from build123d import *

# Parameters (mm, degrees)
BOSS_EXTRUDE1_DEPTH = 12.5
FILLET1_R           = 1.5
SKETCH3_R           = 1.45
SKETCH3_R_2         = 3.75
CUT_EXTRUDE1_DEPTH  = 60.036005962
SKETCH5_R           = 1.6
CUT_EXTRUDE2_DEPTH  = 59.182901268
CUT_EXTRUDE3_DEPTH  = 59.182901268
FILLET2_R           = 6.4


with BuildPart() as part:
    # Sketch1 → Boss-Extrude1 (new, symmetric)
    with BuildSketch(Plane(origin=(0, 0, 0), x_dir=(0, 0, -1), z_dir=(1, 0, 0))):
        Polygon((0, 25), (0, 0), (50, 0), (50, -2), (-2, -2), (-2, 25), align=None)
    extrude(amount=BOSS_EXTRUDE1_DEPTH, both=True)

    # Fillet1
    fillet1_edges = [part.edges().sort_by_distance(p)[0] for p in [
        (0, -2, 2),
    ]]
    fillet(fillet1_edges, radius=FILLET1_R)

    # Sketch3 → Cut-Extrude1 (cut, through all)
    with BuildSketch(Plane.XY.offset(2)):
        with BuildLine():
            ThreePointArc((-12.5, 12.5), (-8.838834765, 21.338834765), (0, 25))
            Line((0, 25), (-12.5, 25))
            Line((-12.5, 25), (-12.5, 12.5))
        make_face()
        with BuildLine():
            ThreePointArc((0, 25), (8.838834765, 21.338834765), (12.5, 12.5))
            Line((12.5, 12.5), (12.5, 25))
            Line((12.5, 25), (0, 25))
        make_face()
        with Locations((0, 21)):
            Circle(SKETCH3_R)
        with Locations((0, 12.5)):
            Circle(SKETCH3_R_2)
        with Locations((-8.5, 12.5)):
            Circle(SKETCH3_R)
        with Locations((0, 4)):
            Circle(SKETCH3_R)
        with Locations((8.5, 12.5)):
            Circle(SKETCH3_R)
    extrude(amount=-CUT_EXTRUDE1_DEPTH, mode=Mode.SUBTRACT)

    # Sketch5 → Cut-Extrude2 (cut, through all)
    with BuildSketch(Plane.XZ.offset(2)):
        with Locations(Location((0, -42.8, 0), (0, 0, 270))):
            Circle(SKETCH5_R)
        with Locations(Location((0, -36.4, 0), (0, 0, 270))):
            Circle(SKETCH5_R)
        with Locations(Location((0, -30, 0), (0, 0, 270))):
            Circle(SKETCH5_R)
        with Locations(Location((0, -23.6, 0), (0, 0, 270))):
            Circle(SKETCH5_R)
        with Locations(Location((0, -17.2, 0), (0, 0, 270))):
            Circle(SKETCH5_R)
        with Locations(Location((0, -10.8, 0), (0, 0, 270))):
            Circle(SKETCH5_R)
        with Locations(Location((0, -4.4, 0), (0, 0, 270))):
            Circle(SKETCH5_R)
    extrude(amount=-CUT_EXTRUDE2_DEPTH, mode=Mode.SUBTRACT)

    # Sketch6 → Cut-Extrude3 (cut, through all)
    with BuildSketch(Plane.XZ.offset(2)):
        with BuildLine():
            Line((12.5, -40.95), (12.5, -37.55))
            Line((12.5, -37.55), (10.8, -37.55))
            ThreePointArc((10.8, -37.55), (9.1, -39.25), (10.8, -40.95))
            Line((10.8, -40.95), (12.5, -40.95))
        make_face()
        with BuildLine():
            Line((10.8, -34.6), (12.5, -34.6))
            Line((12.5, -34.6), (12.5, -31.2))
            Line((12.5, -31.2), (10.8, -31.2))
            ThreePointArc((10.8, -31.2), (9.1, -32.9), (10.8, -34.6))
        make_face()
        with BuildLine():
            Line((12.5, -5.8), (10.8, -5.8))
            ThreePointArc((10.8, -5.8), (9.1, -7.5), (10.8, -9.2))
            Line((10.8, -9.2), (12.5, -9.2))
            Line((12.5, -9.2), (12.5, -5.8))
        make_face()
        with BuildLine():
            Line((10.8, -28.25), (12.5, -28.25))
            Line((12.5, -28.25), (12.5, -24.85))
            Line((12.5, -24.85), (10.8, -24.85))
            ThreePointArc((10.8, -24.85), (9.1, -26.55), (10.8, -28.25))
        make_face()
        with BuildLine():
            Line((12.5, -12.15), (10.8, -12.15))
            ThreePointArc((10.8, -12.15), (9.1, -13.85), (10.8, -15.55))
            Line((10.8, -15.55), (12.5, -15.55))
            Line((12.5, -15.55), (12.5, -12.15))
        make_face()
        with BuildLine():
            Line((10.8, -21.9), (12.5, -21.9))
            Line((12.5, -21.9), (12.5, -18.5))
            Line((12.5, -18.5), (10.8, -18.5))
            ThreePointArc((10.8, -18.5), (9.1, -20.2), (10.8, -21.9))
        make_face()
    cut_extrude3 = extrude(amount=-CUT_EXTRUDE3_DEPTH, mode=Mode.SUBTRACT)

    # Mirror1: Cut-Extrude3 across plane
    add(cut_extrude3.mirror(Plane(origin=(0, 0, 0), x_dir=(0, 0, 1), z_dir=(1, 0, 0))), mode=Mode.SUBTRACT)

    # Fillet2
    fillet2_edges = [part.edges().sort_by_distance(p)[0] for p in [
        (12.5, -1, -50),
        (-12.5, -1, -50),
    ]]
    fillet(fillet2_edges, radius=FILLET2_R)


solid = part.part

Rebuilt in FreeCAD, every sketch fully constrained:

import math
import FreeCAD as App
import Part
import Sketcher

V = App.Vector
Q = App.Units.Quantity


def edges_at(feature, points):
    """Names of the edges that pass closest to the given points."""
    edges = feature.Shape.Edges
    near = lambda p: min(range(len(edges)), key=lambda i: edges[i].distToShape(Part.Vertex(*p))[0])
    return sorted({f"Edge{near(p) + 1}" for p in points})


def add_polygon(sketch, points):
    """Adds a closed chain of lines whose ends are joined by coincident constraints."""
    first, n = sketch.GeometryCount, len(points)
    for a, b in zip(points, points[1:] + points[:1]):
        sketch.addGeometry(Part.LineSegment(App.Vector(*a, 0), App.Vector(*b, 0)), False)
    for i in range(n):
        sketch.addConstraint(Sketcher.Constraint("Coincident", first + i, 2, first + (i + 1) % n, 1))

doc = App.newDocument("Part")
params = doc.addObject("Spreadsheet::Sheet", "Params")
for row, (alias, value) in enumerate([
    ("sketch1_width", "25 mm"),
    ("sketch1_width2", "27 mm"),
    ("sketch1_height", "52 mm"),
    ("pad1_length", "25 mm"),
    ("fillet_radius", "1.5 mm"),
    ("sketch2_diameter", "2.9 mm"),
    ("sketch2_diameter2", "7.5 mm"),
    ("sketch2_radius", "12.5 mm"),
    ("sketch3_diameter", "3.2 mm"),
    ("sketch4_radius", "1.7 mm"),
    ("sketch4_width", "1.7 mm"),
    ("fillet2_radius", "6.4 mm"),
], start=1):
    params.set(f"A{row}", alias)
    params.set(f"B{row}", "=" + value)
    params.setAlias(f"B{row}", alias)

body = doc.addObject("PartDesign::Body", "Body")

# Sketch on YZ plane
sketch1 = body.newObject("Sketcher::SketchObject", "Sketch")
sketch1.AttachmentSupport = (doc.getObject("YZ_Plane"), [""])
sketch1.MapMode = "FlatFace"
add_polygon(sketch1, [(0, 0), (25, 0), (25, 2), (-2, 2), (-2, -50), (0, -50)])  # lines 0-5
sketch1.addConstraint(Sketcher.Constraint("Horizontal", 0))
sketch1.addConstraint(Sketcher.Constraint("Vertical", 1))
sketch1.addConstraint(Sketcher.Constraint("Horizontal", 2))
sketch1.addConstraint(Sketcher.Constraint("Vertical", 3))
sketch1.addConstraint(Sketcher.Constraint("Horizontal", 4))
sketch1.addConstraint(Sketcher.Constraint("Vertical", 5))
sketch1.addConstraint(Sketcher.Constraint("Coincident", 5, 2, -1, 1))
sketch1.addConstraint(Sketcher.Constraint("Equal", 4, 1))
sketch1.addConstraint(Sketcher.Constraint("DistanceX", 0, 1, 0, 2, Q("25 mm")))
sketch1.addConstraint(Sketcher.Constraint("DistanceX", 2, 2, 2, 1, Q("27 mm")))
sketch1.addConstraint(Sketcher.Constraint("DistanceY", 3, 2, 3, 1, Q("52 mm")))
sketch1.setExpression("Constraints[14]", "Params.sketch1_width")
sketch1.setExpression("Constraints[15]", "Params.sketch1_width2")
sketch1.setExpression("Constraints[16]", "Params.sketch1_height")
pad1 = body.newObject("PartDesign::Pad", "Pad")
pad1.Profile = sketch1
pad1.setExpression("Length", "Params.pad1_length")
pad1.Midplane = True
doc.recompute()

fillet = body.newObject("PartDesign::Fillet", "Fillet")
fillet.Base = (pad1, edges_at(pad1, [(0, -2, 2)]))
fillet.setExpression("Radius", "Params.fillet_radius")

# Sketch on XY plane
sketch2 = body.newObject("Sketcher::SketchObject", "Sketch001")
sketch2.AttachmentSupport = (doc.getObject("XY_Plane"), [""])
sketch2.MapMode = "FlatFace"
sketch2.AttachmentOffset = App.Placement(V(0, 0, 2), App.Rotation())
sketch2.addGeometry(Part.ArcOfCircle(Part.Circle(V(0, 12.5, 0), V(0, 0, 1), 12.5), math.radians(90), math.radians(180)), False)
sketch2.addGeometry(Part.LineSegment(V(0, 25, 0), V(-12.5, 25, 0)), False)
sketch2.addGeometry(Part.LineSegment(V(-12.5, 25, 0), V(-12.5, 12.5, 0)), False)
sketch2.addGeometry(Part.ArcOfCircle(Part.Circle(V(0, 12.5, 0), V(0, 0, 1), 12.5), math.radians(0), math.radians(90)), False)
sketch2.addGeometry(Part.LineSegment(V(12.5, 12.5, 0), V(12.5, 25, 0)), False)
sketch2.addGeometry(Part.LineSegment(V(12.5, 25, 0), V(0, 25, 0)), False)
sketch2.addGeometry(Part.Circle(V(0, 21, 0), V(0, 0, 1), 1.4), False)
sketch2.addGeometry(Part.Circle(V(0, 12.5, 0), V(0, 0, 1), 3.8), False)
sketch2.addGeometry(Part.Circle(V(-8.5, 12.5, 0), V(0, 0, 1), 1.4), False)
sketch2.addGeometry(Part.Circle(V(0, 4, 0), V(0, 0, 1), 1.4), False)
sketch2.addGeometry(Part.Circle(V(8.5, 12.5, 0), V(0, 0, 1), 1.4), False)
sketch2.addConstraint(Sketcher.Constraint("Tangent", 0, 1, 1, 1))
sketch2.addConstraint(Sketcher.Constraint("Coincident", 1, 2, 2, 1))
sketch2.addConstraint(Sketcher.Constraint("Tangent", 2, 2, 0, 2))
sketch2.addConstraint(Sketcher.Constraint("Tangent", 3, 1, 4, 1))
sketch2.addConstraint(Sketcher.Constraint("Coincident", 4, 2, 5, 1))
sketch2.addConstraint(Sketcher.Constraint("Tangent", 5, 2, 3, 2))
sketch2.addConstraint(Sketcher.Constraint("Horizontal", 1))
sketch2.addConstraint(Sketcher.Constraint("Vertical", 2))
sketch2.addConstraint(Sketcher.Constraint("Vertical", 4))
sketch2.addConstraint(Sketcher.Constraint("Horizontal", 5))
sketch2.addConstraint(Sketcher.Constraint("Coincident", 3, 3, 0, 3))
sketch2.addConstraint(Sketcher.Constraint("Coincident", 7, 3, 0, 3))
sketch2.addConstraint(Sketcher.Constraint("Equal", 0, 3))
sketch2.addConstraint(Sketcher.Constraint("Equal", 6, 8))
sketch2.addConstraint(Sketcher.Constraint("Equal", 8, 9))
sketch2.addConstraint(Sketcher.Constraint("Equal", 9, 10))
sketch2.addConstraint(Sketcher.Constraint("Symmetric", 8, 3, 10, 3, -2))
sketch2.addConstraint(Sketcher.Constraint("PointOnObject", 0, 3, -2))
sketch2.addConstraint(Sketcher.Constraint("PointOnObject", 6, 3, -2))
sketch2.addConstraint(Sketcher.Constraint("PointOnObject", 9, 3, -2))
sketch2.addConstraint(Sketcher.Constraint("Horizontal", 7, 3, 8, 3))
sketch2.addConstraint(Sketcher.Constraint("Diameter", 6, Q("2.9 mm")))
sketch2.addConstraint(Sketcher.Constraint("Diameter", 7, Q("7.5 mm")))
sketch2.addConstraint(Sketcher.Constraint("Radius", 0, Q("12.5 mm")))
sketch2.addConstraint(Sketcher.Constraint("DistanceY", -1, 1, 6, 3, Q("21 mm")))
sketch2.addConstraint(Sketcher.Constraint("DistanceY", -1, 1, 9, 3, Q("4 mm")))
sketch2.addConstraint(Sketcher.Constraint("DistanceY", -1, 1, 0, 1, Q("25 mm")))
sketch2.addConstraint(Sketcher.Constraint("DistanceX", 1, 2, 8, 3, Q("4 mm")))
sketch2.setExpression("Constraints[21]", "Params.sketch2_diameter")
sketch2.setExpression("Constraints[22]", "Params.sketch2_diameter2")
sketch2.setExpression("Constraints[23]", "Params.sketch2_radius")
pocket1 = body.newObject("PartDesign::Pocket", "Pocket")
pocket1.Profile = sketch2
pocket1.Type = "ThroughAll"

# Sketch on XZ plane
sketch3 = body.newObject("Sketcher::SketchObject", "Sketch002")
sketch3.AttachmentSupport = (doc.getObject("XZ_Plane"), [""])
sketch3.MapMode = "FlatFace"
sketch3.AttachmentOffset = App.Placement(V(0, 0, 2), App.Rotation())
sketch3.addGeometry(Part.Circle(V(0, -42.8, 0), V(0, 0, 1), 1.6), False)
sketch3.addGeometry(Part.Circle(V(0, -36.4, 0), V(0, 0, 1), 1.6), False)
sketch3.addGeometry(Part.Circle(V(0, -30, 0), V(0, 0, 1), 1.6), False)
sketch3.addGeometry(Part.Circle(V(0, -23.6, 0), V(0, 0, 1), 1.6), False)
sketch3.addGeometry(Part.Circle(V(0, -17.2, 0), V(0, 0, 1), 1.6), False)
sketch3.addGeometry(Part.Circle(V(0, -10.8, 0), V(0, 0, 1), 1.6), False)
sketch3.addGeometry(Part.Circle(V(0, -4.4, 0), V(0, 0, 1), 1.6), False)
sketch3.addConstraint(Sketcher.Constraint("Equal", 0, 1))
sketch3.addConstraint(Sketcher.Constraint("Equal", 1, 2))
sketch3.addConstraint(Sketcher.Constraint("Equal", 2, 3))
sketch3.addConstraint(Sketcher.Constraint("Equal", 3, 4))
sketch3.addConstraint(Sketcher.Constraint("Equal", 4, 5))
sketch3.addConstraint(Sketcher.Constraint("Equal", 5, 6))
sketch3.addConstraint(Sketcher.Constraint("PointOnObject", 0, 3, -2))
sketch3.addConstraint(Sketcher.Constraint("PointOnObject", 1, 3, -2))
sketch3.addConstraint(Sketcher.Constraint("PointOnObject", 2, 3, -2))
sketch3.addConstraint(Sketcher.Constraint("PointOnObject", 3, 3, -2))
sketch3.addConstraint(Sketcher.Constraint("PointOnObject", 4, 3, -2))
sketch3.addConstraint(Sketcher.Constraint("PointOnObject", 5, 3, -2))
sketch3.addConstraint(Sketcher.Constraint("PointOnObject", 6, 3, -2))
sketch3.addConstraint(Sketcher.Constraint("Diameter", 0, Q("3.2 mm")))
sketch3.addConstraint(Sketcher.Constraint("DistanceY", 2, 3, -1, 1, Q("30 mm")))
sketch3.addConstraint(Sketcher.Constraint("DistanceY", 0, 3, 5, 3, Q("32 mm")))
sketch3.addConstraint(Sketcher.Constraint("DistanceY", 1, 3, 6, 3, Q("32 mm")))
sketch3.addConstraint(Sketcher.Constraint("DistanceY", 0, 3, -1, 1, Q("42.8 mm")))
sketch3.addConstraint(Sketcher.Constraint("DistanceY", 1, 3, -1, 1, Q("36.4 mm")))
sketch3.addConstraint(Sketcher.Constraint("DistanceY", 3, 3, -1, 1, Q("23.6 mm")))
sketch3.addConstraint(Sketcher.Constraint("DistanceY", 4, 3, -1, 1, Q("17.2 mm")))
sketch3.setExpression("Constraints[13]", "Params.sketch3_diameter")
pocket2 = body.newObject("PartDesign::Pocket", "Pocket001")
pocket2.Profile = sketch3
pocket2.Type = "ThroughAll"

# Sketch on XZ plane
sketch4 = body.newObject("Sketcher::SketchObject", "Sketch003")
sketch4.AttachmentSupport = (doc.getObject("XZ_Plane"), [""])
sketch4.MapMode = "FlatFace"
sketch4.AttachmentOffset = App.Placement(V(0, 0, 2), App.Rotation())
sketch4.addGeometry(Part.LineSegment(V(12.5, -41, 0), V(12.5, -37.5, 0)), False)
sketch4.addGeometry(Part.LineSegment(V(12.5, -37.5, 0), V(10.8, -37.5, 0)), False)
sketch4.addGeometry(Part.ArcOfCircle(Part.Circle(V(10.8, -39.2, 0), V(0, 0, 1), 1.7), math.radians(90), math.radians(270)), False)
sketch4.addGeometry(Part.LineSegment(V(10.8, -41, 0), V(12.5, -41, 0)), False)
sketch4.addGeometry(Part.LineSegment(V(10.8, -34.6, 0), V(12.5, -34.6, 0)), False)
sketch4.addGeometry(Part.LineSegment(V(12.5, -34.6, 0), V(12.5, -31.2, 0)), False)
sketch4.addGeometry(Part.LineSegment(V(12.5, -31.2, 0), V(10.8, -31.2, 0)), False)
sketch4.addGeometry(Part.ArcOfCircle(Part.Circle(V(10.8, -32.9, 0), V(0, 0, 1), 1.7), math.radians(90), math.radians(270)), False)
sketch4.addGeometry(Part.LineSegment(V(12.5, -5.8, 0), V(10.8, -5.8, 0)), False)
sketch4.addGeometry(Part.ArcOfCircle(Part.Circle(V(10.8, -7.5, 0), V(0, 0, 1), 1.7), math.radians(90), math.radians(270)), False)
sketch4.addGeometry(Part.LineSegment(V(10.8, -9.2, 0), V(12.5, -9.2, 0)), False)
sketch4.addGeometry(Part.LineSegment(V(12.5, -9.2, 0), V(12.5, -5.8, 0)), False)
sketch4.addGeometry(Part.LineSegment(V(10.8, -28.2, 0), V(12.5, -28.2, 0)), False)
sketch4.addGeometry(Part.LineSegment(V(12.5, -28.2, 0), V(12.5, -24.9, 0)), False)
sketch4.addGeometry(Part.LineSegment(V(12.5, -24.9, 0), V(10.8, -24.9, 0)), False)
sketch4.addGeometry(Part.ArcOfCircle(Part.Circle(V(10.8, -26.6, 0), V(0, 0, 1), 1.7), math.radians(90), math.radians(270)), False)
sketch4.addGeometry(Part.LineSegment(V(12.5, -12.2, 0), V(10.8, -12.2, 0)), False)
sketch4.addGeometry(Part.ArcOfCircle(Part.Circle(V(10.8, -13.8, 0), V(0, 0, 1), 1.7), math.radians(90), math.radians(270)), False)
sketch4.addGeometry(Part.LineSegment(V(10.8, -15.6, 0), V(12.5, -15.6, 0)), False)
sketch4.addGeometry(Part.LineSegment(V(12.5, -15.6, 0), V(12.5, -12.2, 0)), False)
sketch4.addGeometry(Part.LineSegment(V(10.8, -21.9, 0), V(12.5, -21.9, 0)), False)
sketch4.addGeometry(Part.LineSegment(V(12.5, -21.9, 0), V(12.5, -18.5, 0)), False)
sketch4.addGeometry(Part.LineSegment(V(12.5, -18.5, 0), V(10.8, -18.5, 0)), False)
sketch4.addGeometry(Part.ArcOfCircle(Part.Circle(V(10.8, -20.2, 0), V(0, 0, 1), 1.7), math.radians(90), math.radians(270)), False)
sketch4.addConstraint(Sketcher.Constraint("Coincident", 0, 2, 1, 1))
sketch4.addConstraint(Sketcher.Constraint("Tangent", 1, 2, 2, 1))
sketch4.addConstraint(Sketcher.Constraint("Tangent", 2, 2, 3, 1))
sketch4.addConstraint(Sketcher.Constraint("Coincident", 3, 2, 0, 1))
sketch4.addConstraint(Sketcher.Constraint("Coincident", 4, 2, 5, 1))
sketch4.addConstraint(Sketcher.Constraint("Coincident", 5, 2, 6, 1))
sketch4.addConstraint(Sketcher.Constraint("Tangent", 6, 2, 7, 1))
sketch4.addConstraint(Sketcher.Constraint("Tangent", 7, 2, 4, 1))
sketch4.addConstraint(Sketcher.Constraint("Tangent", 8, 2, 9, 1))
sketch4.addConstraint(Sketcher.Constraint("Tangent", 9, 2, 10, 1))
sketch4.addConstraint(Sketcher.Constraint("Coincident", 10, 2, 11, 1))
sketch4.addConstraint(Sketcher.Constraint("Coincident", 11, 2, 8, 1))
sketch4.addConstraint(Sketcher.Constraint("Coincident", 12, 2, 13, 1))
sketch4.addConstraint(Sketcher.Constraint("Coincident", 13, 2, 14, 1))
sketch4.addConstraint(Sketcher.Constraint("Tangent", 14, 2, 15, 1))
sketch4.addConstraint(Sketcher.Constraint("Tangent", 15, 2, 12, 1))
sketch4.addConstraint(Sketcher.Constraint("Tangent", 16, 2, 17, 1))
sketch4.addConstraint(Sketcher.Constraint("Tangent", 17, 2, 18, 1))
sketch4.addConstraint(Sketcher.Constraint("Coincident", 18, 2, 19, 1))
sketch4.addConstraint(Sketcher.Constraint("Coincident", 19, 2, 16, 1))
sketch4.addConstraint(Sketcher.Constraint("Coincident", 20, 2, 21, 1))
sketch4.addConstraint(Sketcher.Constraint("Coincident", 21, 2, 22, 1))
sketch4.addConstraint(Sketcher.Constraint("Tangent", 22, 2, 23, 1))
sketch4.addConstraint(Sketcher.Constraint("Tangent", 23, 2, 20, 1))
sketch4.addConstraint(Sketcher.Constraint("Vertical", 0))
sketch4.addConstraint(Sketcher.Constraint("Horizontal", 1))
sketch4.addConstraint(Sketcher.Constraint("Horizontal", 3))
sketch4.addConstraint(Sketcher.Constraint("Horizontal", 4))
sketch4.addConstraint(Sketcher.Constraint("Vertical", 5))
sketch4.addConstraint(Sketcher.Constraint("Horizontal", 6))
sketch4.addConstraint(Sketcher.Constraint("Horizontal", 8))
sketch4.addConstraint(Sketcher.Constraint("Horizontal", 10))
sketch4.addConstraint(Sketcher.Constraint("Vertical", 11))
sketch4.addConstraint(Sketcher.Constraint("Horizontal", 12))
sketch4.addConstraint(Sketcher.Constraint("Vertical", 13))
sketch4.addConstraint(Sketcher.Constraint("Horizontal", 14))
sketch4.addConstraint(Sketcher.Constraint("Horizontal", 16))
sketch4.addConstraint(Sketcher.Constraint("Horizontal", 18))
sketch4.addConstraint(Sketcher.Constraint("Vertical", 19))
sketch4.addConstraint(Sketcher.Constraint("Horizontal", 20))
sketch4.addConstraint(Sketcher.Constraint("Vertical", 21))
sketch4.addConstraint(Sketcher.Constraint("Horizontal", 22))
sketch4.addConstraint(Sketcher.Constraint("Equal", 2, 7))
sketch4.addConstraint(Sketcher.Constraint("Equal", 7, 9))
sketch4.addConstraint(Sketcher.Constraint("Equal", 9, 15))
sketch4.addConstraint(Sketcher.Constraint("Equal", 15, 17))
sketch4.addConstraint(Sketcher.Constraint("Equal", 17, 23))
sketch4.addConstraint(Sketcher.Constraint("Vertical", 2, 3, 7, 3))
sketch4.addConstraint(Sketcher.Constraint("Vertical", 7, 3, 9, 3))
sketch4.addConstraint(Sketcher.Constraint("Vertical", 9, 3, 15, 3))
sketch4.addConstraint(Sketcher.Constraint("Vertical", 15, 3, 17, 3))
sketch4.addConstraint(Sketcher.Constraint("Vertical", 17, 3, 23, 3))
sketch4.addConstraint(Sketcher.Constraint("Vertical", 3, 2, 4, 2))
sketch4.addConstraint(Sketcher.Constraint("Vertical", 5, 2, 10, 2))
sketch4.addConstraint(Sketcher.Constraint("Vertical", 11, 2, 12, 2))
sketch4.addConstraint(Sketcher.Constraint("Vertical", 13, 2, 18, 2))
sketch4.addConstraint(Sketcher.Constraint("Vertical", 19, 2, 20, 2))
sketch4.addConstraint(Sketcher.Constraint("Radius", 2, Q("1.7 mm")))
sketch4.addConstraint(Sketcher.Constraint("DistanceX", 1, 2, 1, 1, Q("1.7 mm")))
sketch4.addConstraint(Sketcher.Constraint("DistanceY", 0, 2, 15, 3, Q("11 mm")))
sketch4.addConstraint(Sketcher.Constraint("DistanceY", 23, 3, 9, 2, Q("11 mm")))
sketch4.addConstraint(Sketcher.Constraint("DistanceX", -1, 1, 2, 3, Q("10.8 mm")))
sketch4.addConstraint(Sketcher.Constraint("DistanceY", 7, 3, -1, 1, Q("32.9 mm")))
sketch4.addConstraint(Sketcher.Constraint("DistanceY", 9, 3, -1, 1, Q("7.5 mm")))
sketch4.addConstraint(Sketcher.Constraint("DistanceY", 15, 3, 17, 3, Q("12.7 mm")))
sketch4.addConstraint(Sketcher.Constraint("DistanceY", 2, 3, -1, 1, Q("39.25 mm")))
sketch4.setExpression("Constraints[57]", "Params.sketch4_radius")
sketch4.setExpression("Constraints[58]", "Params.sketch4_width")
pocket3 = body.newObject("PartDesign::Pocket", "Pocket002")
pocket3.Profile = sketch4
pocket3.Type = "ThroughAll"
doc.recompute()

mirrored = body.newObject("PartDesign::Mirrored", "Mirrored")
mirrored.Originals = [pocket3]
mirrored.MirrorPlane = (doc.getObject("YZ_Plane"), [""])
body.Tip = mirrored
doc.recompute()

fillet2 = body.newObject("PartDesign::Fillet", "Fillet001")
fillet2.Base = (mirrored, edges_at(mirrored, [(12.5, -1, -50), (-12.5, -1, -50)]))
fillet2.setExpression("Radius", "Params.fillet2_radius")

doc.recompute()
